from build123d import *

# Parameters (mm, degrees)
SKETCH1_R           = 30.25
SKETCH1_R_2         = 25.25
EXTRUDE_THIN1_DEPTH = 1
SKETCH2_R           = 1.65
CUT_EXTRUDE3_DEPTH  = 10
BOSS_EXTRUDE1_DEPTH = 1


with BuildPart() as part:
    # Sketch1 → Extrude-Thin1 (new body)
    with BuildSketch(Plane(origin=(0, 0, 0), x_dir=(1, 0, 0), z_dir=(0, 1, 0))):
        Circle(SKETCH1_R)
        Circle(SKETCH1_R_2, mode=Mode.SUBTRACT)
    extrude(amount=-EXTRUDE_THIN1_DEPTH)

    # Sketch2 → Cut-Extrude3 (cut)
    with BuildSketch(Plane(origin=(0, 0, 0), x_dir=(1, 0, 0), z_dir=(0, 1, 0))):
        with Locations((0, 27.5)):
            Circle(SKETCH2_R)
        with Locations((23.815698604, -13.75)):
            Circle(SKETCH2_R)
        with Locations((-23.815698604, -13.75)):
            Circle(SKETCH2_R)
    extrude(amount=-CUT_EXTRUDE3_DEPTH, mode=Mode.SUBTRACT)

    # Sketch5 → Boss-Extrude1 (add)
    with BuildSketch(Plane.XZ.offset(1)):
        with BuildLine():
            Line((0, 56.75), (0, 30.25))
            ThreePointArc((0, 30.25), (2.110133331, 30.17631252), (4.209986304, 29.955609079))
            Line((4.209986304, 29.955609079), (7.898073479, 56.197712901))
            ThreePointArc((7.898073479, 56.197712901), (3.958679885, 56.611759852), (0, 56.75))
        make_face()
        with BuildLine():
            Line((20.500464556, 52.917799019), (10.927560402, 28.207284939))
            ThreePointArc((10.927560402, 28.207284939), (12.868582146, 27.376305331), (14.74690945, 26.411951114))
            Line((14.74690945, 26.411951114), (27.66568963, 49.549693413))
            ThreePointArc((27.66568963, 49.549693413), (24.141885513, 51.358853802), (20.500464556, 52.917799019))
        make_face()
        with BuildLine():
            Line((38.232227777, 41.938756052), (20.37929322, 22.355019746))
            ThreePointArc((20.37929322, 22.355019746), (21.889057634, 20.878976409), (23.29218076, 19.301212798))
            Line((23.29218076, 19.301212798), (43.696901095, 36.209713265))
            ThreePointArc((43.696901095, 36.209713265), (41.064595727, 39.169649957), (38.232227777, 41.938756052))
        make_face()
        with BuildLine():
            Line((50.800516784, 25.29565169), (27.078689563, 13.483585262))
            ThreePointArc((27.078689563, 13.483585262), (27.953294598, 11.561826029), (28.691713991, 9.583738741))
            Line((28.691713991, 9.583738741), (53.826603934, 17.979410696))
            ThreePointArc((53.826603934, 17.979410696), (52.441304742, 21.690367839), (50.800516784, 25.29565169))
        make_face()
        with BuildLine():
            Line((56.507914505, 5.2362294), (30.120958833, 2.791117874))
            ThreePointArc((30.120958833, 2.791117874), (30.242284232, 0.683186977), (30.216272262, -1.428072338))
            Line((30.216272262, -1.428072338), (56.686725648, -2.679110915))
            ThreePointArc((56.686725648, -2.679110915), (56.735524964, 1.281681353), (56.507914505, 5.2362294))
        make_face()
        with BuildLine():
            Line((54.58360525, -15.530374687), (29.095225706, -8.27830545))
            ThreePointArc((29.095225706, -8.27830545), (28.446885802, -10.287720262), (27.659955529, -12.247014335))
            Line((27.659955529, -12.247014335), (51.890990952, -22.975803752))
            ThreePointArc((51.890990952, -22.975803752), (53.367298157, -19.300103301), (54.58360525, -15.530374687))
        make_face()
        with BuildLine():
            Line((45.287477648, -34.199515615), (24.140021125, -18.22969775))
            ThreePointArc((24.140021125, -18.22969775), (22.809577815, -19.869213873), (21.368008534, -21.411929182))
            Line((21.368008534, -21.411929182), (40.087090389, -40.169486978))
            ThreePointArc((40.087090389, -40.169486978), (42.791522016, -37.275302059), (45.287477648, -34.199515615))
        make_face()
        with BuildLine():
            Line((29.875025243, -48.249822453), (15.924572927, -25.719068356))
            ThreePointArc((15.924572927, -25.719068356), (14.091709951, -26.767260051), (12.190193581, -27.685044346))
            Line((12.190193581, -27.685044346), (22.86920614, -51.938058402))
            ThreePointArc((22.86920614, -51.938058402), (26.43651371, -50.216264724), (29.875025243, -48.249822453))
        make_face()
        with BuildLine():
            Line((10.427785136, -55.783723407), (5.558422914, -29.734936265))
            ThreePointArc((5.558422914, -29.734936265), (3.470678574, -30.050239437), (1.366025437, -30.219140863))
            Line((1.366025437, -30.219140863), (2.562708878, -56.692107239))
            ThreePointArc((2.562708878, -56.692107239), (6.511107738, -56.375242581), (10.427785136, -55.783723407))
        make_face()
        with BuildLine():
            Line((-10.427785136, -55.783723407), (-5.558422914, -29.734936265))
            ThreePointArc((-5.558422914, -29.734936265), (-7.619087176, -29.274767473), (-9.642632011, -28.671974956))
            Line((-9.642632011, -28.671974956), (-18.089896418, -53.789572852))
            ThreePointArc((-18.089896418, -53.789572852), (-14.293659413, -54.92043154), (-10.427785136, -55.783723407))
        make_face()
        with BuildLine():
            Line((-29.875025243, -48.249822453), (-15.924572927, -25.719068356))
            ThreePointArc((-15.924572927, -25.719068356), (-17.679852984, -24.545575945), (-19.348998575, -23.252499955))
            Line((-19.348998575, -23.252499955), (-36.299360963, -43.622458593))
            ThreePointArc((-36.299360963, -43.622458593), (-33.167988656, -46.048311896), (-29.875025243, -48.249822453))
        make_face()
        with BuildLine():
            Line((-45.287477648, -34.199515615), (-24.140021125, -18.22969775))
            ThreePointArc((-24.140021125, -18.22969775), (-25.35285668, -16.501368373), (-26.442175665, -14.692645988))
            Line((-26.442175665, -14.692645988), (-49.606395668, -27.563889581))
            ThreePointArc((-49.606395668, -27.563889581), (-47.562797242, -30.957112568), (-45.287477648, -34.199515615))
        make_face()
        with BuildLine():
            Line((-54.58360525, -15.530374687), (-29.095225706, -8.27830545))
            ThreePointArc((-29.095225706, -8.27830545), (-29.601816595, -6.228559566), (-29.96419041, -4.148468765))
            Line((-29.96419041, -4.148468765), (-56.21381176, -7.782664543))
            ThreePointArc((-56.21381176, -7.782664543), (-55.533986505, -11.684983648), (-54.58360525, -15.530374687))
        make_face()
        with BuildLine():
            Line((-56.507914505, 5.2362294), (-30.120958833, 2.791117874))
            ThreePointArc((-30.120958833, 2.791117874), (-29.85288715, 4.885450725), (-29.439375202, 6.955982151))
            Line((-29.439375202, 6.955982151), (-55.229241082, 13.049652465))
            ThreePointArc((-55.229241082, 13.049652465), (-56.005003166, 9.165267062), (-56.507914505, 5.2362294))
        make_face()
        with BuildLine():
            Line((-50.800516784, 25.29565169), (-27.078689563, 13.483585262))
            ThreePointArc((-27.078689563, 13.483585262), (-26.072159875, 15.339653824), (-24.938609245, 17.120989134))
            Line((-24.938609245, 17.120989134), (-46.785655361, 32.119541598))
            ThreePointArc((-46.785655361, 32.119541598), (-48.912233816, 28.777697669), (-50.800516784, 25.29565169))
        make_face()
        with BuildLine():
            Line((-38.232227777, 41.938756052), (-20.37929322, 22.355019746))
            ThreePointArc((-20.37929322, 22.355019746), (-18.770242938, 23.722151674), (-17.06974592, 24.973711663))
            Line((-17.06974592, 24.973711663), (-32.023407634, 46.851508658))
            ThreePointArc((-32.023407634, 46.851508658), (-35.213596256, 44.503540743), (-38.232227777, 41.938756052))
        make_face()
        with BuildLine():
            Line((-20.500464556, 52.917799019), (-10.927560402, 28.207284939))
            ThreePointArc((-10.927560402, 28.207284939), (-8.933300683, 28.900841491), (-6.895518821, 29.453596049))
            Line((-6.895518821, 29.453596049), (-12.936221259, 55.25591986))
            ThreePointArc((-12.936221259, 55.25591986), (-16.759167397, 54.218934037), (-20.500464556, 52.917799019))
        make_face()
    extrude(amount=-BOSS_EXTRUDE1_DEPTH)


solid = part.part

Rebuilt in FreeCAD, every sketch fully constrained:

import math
import FreeCAD as App
import Part
import Sketcher
Q = App.Units.Quantity

doc = App.newDocument("Part")
params = doc.addObject("Spreadsheet::Sheet", "Params")
for row, (alias, value) in enumerate([
    ("sketch1_diameter", "60.5 mm"),
    ("sketch1_diameter2", "50.5 mm"),
    ("pad1_length", "1 mm"),
    ("sketch2_diameter", "3.3 mm"),
    ("pocket1_length", "10 mm"),
    ("sketch3_radius", "30.25 mm"),
    ("sketch3_radius2", "56.75 mm"),
    ("pad2_length", "1 mm"),
], start=1):
    params.set(f"A{row}", alias)
    params.set(f"B{row}", "=" + value)
    params.setAlias(f"B{row}", alias)

body = doc.addObject("PartDesign::Body", "Body")

# Sketch on XZ plane
sketch1 = body.newObject("Sketcher::SketchObject", "Sketch")
sketch1.AttachmentSupport = (doc.getObject("XZ_Plane"), [""])
sketch1.MapMode = "FlatFace"
sketch1.addGeometry([
    Part.Circle(App.Vector(0, 0, 0), App.Vector(0, 0, 1), 30),
    Part.Circle(App.Vector(0, 0, 0), App.Vector(0, 0, 1), 25),
], False)
sketch1.addConstraint([
    Sketcher.Constraint("Coincident", 0, 3, -1, 1),
    Sketcher.Constraint("Coincident", 1, 3, -1, 1),
    Sketcher.Constraint("Diameter", 0, 60.5),
    Sketcher.Constraint("Diameter", 1, 50.5),
])
sketch1.setExpression("Constraints[2]", "Params.sketch1_diameter")
sketch1.setExpression("Constraints[3]", "Params.sketch1_diameter2")
pad1 = body.newObject("PartDesign::Pad", "Pad")
pad1.Profile = sketch1
pad1.setExpression("Length", "Params.pad1_length")

# Sketch on XZ plane
sketch2 = body.newObject("Sketcher::SketchObject", "Sketch001")
sketch2.AttachmentSupport = (doc.getObject("XZ_Plane"), [""])
sketch2.MapMode = "FlatFace"
sketch2.addGeometry([
    Part.Circle(App.Vector(0, -27.5, 0), App.Vector(0, 0, 1), 1.6),
    Part.Circle(App.Vector(23.8, 13.8, 0), App.Vector(0, 0, 1), 1.6),
    Part.Circle(App.Vector(-23.8, 13.8, 0), App.Vector(0, 0, 1), 1.6),
], False)
sketch2.addConstraint([
    Sketcher.Constraint("Equal", 0, 1),
    Sketcher.Constraint("Equal", 1, 2),
    Sketcher.Constraint("Symmetric", 1, 3, 2, 3, -2),
    Sketcher.Constraint("PointOnObject", 0, 3, -2),
    Sketcher.Constraint("Diameter", 0, 3.3),
    Sketcher.Constraint("DistanceY", 0, 3, -1, 1, 27.5),
    Sketcher.Constraint("DistanceY", -1, 1, 1, 3, 13.75),
    Sketcher.Constraint("DistanceX", -1, 1, 1, 3, 23.815699),
])
sketch2.setExpression("Constraints[4]", "Params.sketch2_diameter")
pocket1 = body.newObject("PartDesign::Pocket", "Pocket")
pocket1.Profile = sketch2
pocket1.setExpression("Length", "Params.pocket1_length")
pocket1.Reversed = True

# Sketch on XZ plane
sketch3 = body.newObject("Sketcher::SketchObject", "Sketch002")
sketch3.AttachmentSupport = (doc.getObject("XZ_Plane"), [""])
sketch3.MapMode = "FlatFace"
sketch3.AttachmentOffset = App.Placement(App.Vector(0, 0, 1), App.Rotation())
sketch3.addGeometry([
    Part.LineSegment(App.Vector(0, 56.8, 0), App.Vector(0, 30.2, 0)),  # 0
    Part.ArcOfCircle(Part.Circle(App.Vector(0, 0, 0), App.Vector(0, 0, 1), 30.3), math.radians(82), math.radians(90)),  # 1
    Part.LineSegment(App.Vector(4.2, 30, 0), App.Vector(7.9, 56.2, 0)),  # 2
    Part.ArcOfCircle(Part.Circle(App.Vector(0, 0, 0), App.Vector(0, 0, 1), 56.8), math.radians(82), math.radians(90)),  # 3
    Part.LineSegment(App.Vector(20.5, 52.9, 0), App.Vector(10.9, 28.2, 0)),  # 4
    Part.ArcOfCircle(Part.Circle(App.Vector(0, 0, 0), App.Vector(0, 0, 1), 30.2), math.radians(60.82), math.radians(68.82)),  # 5
    Part.LineSegment(App.Vector(14.7, 26.4, 0), App.Vector(27.7, 49.5, 0)),  # 6
    Part.ArcOfCircle(Part.Circle(App.Vector(0, 0, 0), App.Vector(0, 0, 1), 56.8), math.radians(60.82), math.radians(68.82)),  # 7
    Part.LineSegment(App.Vector(38.2, 41.9, 0), App.Vector(20.4, 22.4, 0)),  # 8
    Part.ArcOfCircle(Part.Circle(App.Vector(0, 0, 0), App.Vector(0, 0, 1), 30.3), math.radians(39.65), math.radians(47.65)),  # 9
    Part.LineSegment(App.Vector(23.3, 19.3, 0), App.Vector(43.7, 36.2, 0)),  # 10
    Part.ArcOfCircle(Part.Circle(App.Vector(0, 0, 0), App.Vector(0, 0, 1), 56.8), math.radians(39.65), math.radians(47.65)),  # 11
    Part.LineSegment(App.Vector(50.8, 25.3, 0), App.Vector(27.1, 13.5, 0)),  # 12
    Part.ArcOfCircle(Part.Circle(App.Vector(0, 0, 0), App.Vector(0, 0, 1), 30.2), math.radians(18.47), math.radians(26.47)),  # 13
    Part.LineSegment(App.Vector(28.7, 9.6, 0), App.Vector(53.8, 18, 0)),  # 14
    Part.ArcOfCircle(Part.Circle(App.Vector(0, 0, 0), App.Vector(0, 0, 1), 56.7), math.radians(18.47), math.radians(26.47)),  # 15
    Part.LineSegment(App.Vector(56.5, 5.2, 0), App.Vector(30.1, 2.8, 0)),  # 16
    Part.ArcOfCircle(Part.Circle(App.Vector(0, 0, 0), App.Vector(0, 0, 1), 30.2), math.radians(-2.71), math.radians(5.29)),  # 17
    Part.LineSegment(App.Vector(30.2, -1.4, 0), App.Vector(56.7, -2.7, 0)),  # 18
    Part.ArcOfCircle(Part.Circle(App.Vector(0, 0, 0), App.Vector(0, 0, 1), 56.7), math.radians(-2.71), math.radians(5.29)),  # 19
    Part.LineSegment(App.Vector(54.6, -15.5, 0), App.Vector(29.1, -8.3, 0)),  # 20
    Part.ArcOfCircle(Part.Circle(App.Vector(0, 0, 0), App.Vector(0, 0, 1), 30.2), math.radians(-23.88), math.radians(-15.88)),  # 21
    Part.LineSegment(App.Vector(27.7, -12.2, 0), App.Vector(51.9, -23, 0)),  # 22
    Part.ArcOfCircle(Part.Circle(App.Vector(0, 0, 0), App.Vector(0, 0, 1), 56.8), math.radians(-23.88), math.radians(-15.88)),  # 23
    Part.LineSegment(App.Vector(45.3, -34.2, 0), App.Vector(24.1, -18.2, 0)),  # 24
    Part.ArcOfCircle(Part.Circle(App.Vector(0, 0, 0), App.Vector(0, 0, 1), 30.2), math.radians(-45.06), math.radians(-37.06)),  # 25
    Part.LineSegment(App.Vector(21.4, -21.4, 0), App.Vector(40.1, -40.2, 0)),  # 26
    Part.ArcOfCircle(Part.Circle(App.Vector(0, 0, 0), App.Vector(0, 0, 1), 56.7), math.radians(-45.06), math.radians(-37.06)),  # 27
    Part.LineSegment(App.Vector(29.9, -48.2, 0), App.Vector(15.9, -25.7, 0)),  # 28
    Part.ArcOfCircle(Part.Circle(App.Vector(0, 0, 0), App.Vector(0, 0, 1), 30.3), math.radians(-66.24), math.radians(-58.24)),  # 29
    Part.LineSegment(App.Vector(12.2, -27.7, 0), App.Vector(22.9, -51.9, 0)),  # 30
    Part.ArcOfCircle(Part.Circle(App.Vector(0, 0, 0), App.Vector(0, 0, 1), 56.8), math.radians(-66.24), math.radians(-58.24)),  # 31
    Part.LineSegment(App.Vector(10.4, -55.8, 0), App.Vector(5.6, -29.7, 0)),  # 32
    Part.ArcOfCircle(Part.Circle(App.Vector(0, 0, 0), App.Vector(0, 0, 1), 30.2), math.radians(-87.41), math.radians(-79.41)),  # 33
    Part.LineSegment(App.Vector(1.4, -30.2, 0), App.Vector(2.6, -56.7, 0)),  # 34
    Part.ArcOfCircle(Part.Circle(App.Vector(0, 0, 0), App.Vector(0, 0, 1), 56.7), math.radians(-87.41), math.radians(-79.41)),  # 35
    Part.LineSegment(App.Vector(-10.4, -55.8, 0), App.Vector(-5.6, -29.7, 0)),  # 36
    Part.ArcOfCircle(Part.Circle(App.Vector(0, 0, 0), App.Vector(0, 0, 1), 30.2), math.radians(-108.59), math.radians(-100.59)),  # 37
    Part.LineSegment(App.Vector(-9.6, -28.7, 0), App.Vector(-18.1, -53.8, 0)),  # 38
    Part.ArcOfCircle(Part.Circle(App.Vector(0, 0, 0), App.Vector(0, 0, 1), 56.8), math.radians(-108.59), math.radians(-100.59)),  # 39
    Part.LineSegment(App.Vector(-29.9, -48.2, 0), App.Vector(-15.9, -25.7, 0)),  # 40
    Part.ArcOfCircle(Part.Circle(App.Vector(0, 0, 0), App.Vector(0, 0, 1), 30.3), math.radians(-129.76), math.radians(-121.76)),  # 41
    Part.LineSegment(App.Vector(-19.3, -23.3, 0), App.Vector(-36.3, -43.6, 0)),  # 42
    Part.ArcOfCircle(Part.Circle(App.Vector(0, 0, 0), App.Vector(0, 0, 1), 56.8), math.radians(-129.76), math.radians(-121.76)),  # 43
    Part.LineSegment(App.Vector(-45.3, -34.2, 0), App.Vector(-24.1, -18.2, 0)),  # 44
    Part.ArcOfCircle(Part.Circle(App.Vector(0, 0, 0), App.Vector(0, 0, 1), 30.2), math.radians(-150.94), math.radians(-142.94)),  # 45
    Part.LineSegment(App.Vector(-26.4, -14.7, 0), App.Vector(-49.6, -27.6, 0)),  # 46
    Part.ArcOfCircle(Part.Circle(App.Vector(0, 0, 0), App.Vector(0, 0, 1), 56.7), math.radians(-150.94), math.radians(-142.94)),  # 47
    Part.LineSegment(App.Vector(-54.6, -15.5, 0), App.Vector(-29.1, -8.3, 0)),  # 48
    Part.ArcOfCircle(Part.Circle(App.Vector(0, 0, 0), App.Vector(0, 0, 1), 30.3), math.radians(-172.12), math.radians(-164.12)),  # 49
    Part.LineSegment(App.Vector(-30, -4.1, 0), App.Vector(-56.2, -7.8, 0)),  # 50
    Part.ArcOfCircle(Part.Circle(App.Vector(0, 0, 0), App.Vector(0, 0, 1), 56.8), math.radians(-172.12), math.radians(-164.12)),  # 51
    Part.LineSegment(App.Vector(-56.5, 5.2, 0), App.Vector(-30.1, 2.8, 0)),  # 52
    Part.ArcOfCircle(Part.Circle(App.Vector(0, 0, 0), App.Vector(0, 0, 1), 30.3), math.radians(166.71), math.radians(174.71)),  # 53
    Part.LineSegment(App.Vector(-29.4, 7, 0), App.Vector(-55.2, 13, 0)),  # 54
    Part.ArcOfCircle(Part.Circle(App.Vector(0, 0, 0), App.Vector(0, 0, 1), 56.8), math.radians(166.71), math.radians(174.71)),  # 55
    Part.LineSegment(App.Vector(-50.8, 25.3, 0), App.Vector(-27.1, 13.5, 0)),  # 56
    Part.ArcOfCircle(Part.Circle(App.Vector(0, 0, 0), App.Vector(0, 0, 1), 30.2), math.radians(145.53), math.radians(153.53)),  # 57
    Part.LineSegment(App.Vector(-24.9, 17.1, 0), App.Vector(-46.8, 32.1, 0)),  # 58
    Part.ArcOfCircle(Part.Circle(App.Vector(0, 0, 0), App.Vector(0, 0, 1), 56.7), math.radians(145.53), math.radians(153.53)),  # 59
    Part.LineSegment(App.Vector(-38.2, 41.9, 0), App.Vector(-20.4, 22.4, 0)),  # 60
    Part.ArcOfCircle(Part.Circle(App.Vector(0, 0, 0), App.Vector(0, 0, 1), 30.2), math.radians(124.35), math.radians(132.35)),  # 61
    Part.LineSegment(App.Vector(-17.1, 25, 0), App.Vector(-32, 46.9, 0)),  # 62
    Part.ArcOfCircle(Part.Circle(App.Vector(0, 0, 0), App.Vector(0, 0, 1), 56.8), math.radians(124.35), math.radians(132.35)),  # 63
    Part.LineSegment(App.Vector(-20.5, 52.9, 0), App.Vector(-10.9, 28.2, 0)),  # 64
    Part.ArcOfCircle(Part.Circle(App.Vector(0, 0, 0), App.Vector(0, 0, 1), 30.3), math.radians(103.18), math.radians(111.18)),  # 65
    Part.LineSegment(App.Vector(-6.9, 29.5, 0), App.Vector(-12.9, 55.3, 0)),  # 66
    Part.ArcOfCircle(Part.Circle(App.Vector(0, 0, 0), App.Vector(0, 0, 1), 56.8), math.radians(103.18), math.radians(111.18)),  # 67
], False)
sketch3.addConstraint([
    Sketcher.Constraint("Coincident", 0, 2, 1, 2),
    Sketcher.Constraint("Coincident", 1, 1, 2, 1),
    Sketcher.Constraint("Coincident", 2, 2, 3, 1),
    Sketcher.Constraint("Coincident", 3, 2, 0, 1),
    Sketcher.Constraint("Coincident", 4, 2, 5, 2),
    Sketcher.Constraint("Coincident", 5, 1, 6, 1),
    Sketcher.Constraint("Coincident", 6, 2, 7, 1),
    Sketcher.Constraint("Coincident", 7, 2, 4, 1),
    Sketcher.Constraint("Coincident", 8, 2, 9, 2),
    Sketcher.Constraint("Coincident", 9, 1, 10, 1),
    Sketcher.Constraint("Coincident", 10, 2, 11, 1),
    Sketcher.Constraint("Coincident", 11, 2, 8, 1),
    Sketcher.Constraint("Coincident", 12, 2, 13, 2),
    Sketcher.Constraint("Coincident", 13, 1, 14, 1),
    Sketcher.Constraint("Coincident", 14, 2, 15, 1),
    Sketcher.Constraint("Coincident", 15, 2, 12, 1),
    Sketcher.Constraint("Coincident", 16, 2, 17, 2),
    Sketcher.Constraint("Coincident", 17, 1, 18, 1),
    Sketcher.Constraint("Coincident", 18, 2, 19, 1),
    Sketcher.Constraint("Coincident", 19, 2, 16, 1),
    Sketcher.Constraint("Coincident", 20, 2, 21, 2),
    Sketcher.Constraint("Coincident", 21, 1, 22, 1),
    Sketcher.Constraint("Coincident", 22, 2, 23, 1),
    Sketcher.Constraint("Coincident", 23, 2, 20, 1),
    Sketcher.Constraint("Coincident", 24, 2, 25, 2),
    Sketcher.Constraint("Coincident", 25, 1, 26, 1),
    Sketcher.Constraint("Coincident", 26, 2, 27, 1),
    Sketcher.Constraint("Coincident", 27, 2, 24, 1),
    Sketcher.Constraint("Coincident", 28, 2, 29, 2),
    Sketcher.Constraint("Coincident", 29, 1, 30, 1),
    Sketcher.Constraint("Coincident", 30, 2, 31, 1),
    Sketcher.Constraint("Coincident", 31, 2, 28, 1),
    Sketcher.Constraint("Coincident", 32, 2, 33, 2),
    Sketcher.Constraint("Coincident", 33, 1, 34, 1),
    Sketcher.Constraint("Coincident", 34, 2, 35, 1),
    Sketcher.Constraint("Coincident", 35, 2, 32, 1),
    Sketcher.Constraint("Coincident", 36, 2, 37, 2),
    Sketcher.Constraint("Coincident", 37, 1, 38, 1),
    Sketcher.Constraint("Coincident", 38, 2, 39, 1),
    Sketcher.Constraint("Coincident", 39, 2, 36, 1),
    Sketcher.Constraint("Coincident", 40, 2, 41, 2),
    Sketcher.Constraint("Coincident", 41, 1, 42, 1),
    Sketcher.Constraint("Coincident", 42, 2, 43, 1),
    Sketcher.Constraint("Coincident", 43, 2, 40, 1),
    Sketcher.Constraint("Coincident", 44, 2, 45, 2),
    Sketcher.Constraint("Coincident", 45, 1, 46, 1),
    Sketcher.Constraint("Coincident", 46, 2, 47, 1),
    Sketcher.Constraint("Coincident", 47, 2, 44, 1),
    Sketcher.Constraint("Coincident", 48, 2, 49, 2),
    Sketcher.Constraint("Coincident", 49, 1, 50, 1),
    Sketcher.Constraint("Coincident", 50, 2, 51, 1),
    Sketcher.Constraint("Coincident", 51, 2, 48, 1),
    Sketcher.Constraint("Coincident", 52, 2, 53, 2),
    Sketcher.Constraint("Coincident", 53, 1, 54, 1),
    Sketcher.Constraint("Coincident", 54, 2, 55, 1),
    Sketcher.Constraint("Coincident", 55, 2, 52, 1),
    Sketcher.Constraint("Coincident", 56, 2, 57, 2),
    Sketcher.Constraint("Coincident", 57, 1, 58, 1),
    Sketcher.Constraint("Coincident", 58, 2, 59, 1),
    Sketcher.Constraint("Coincident", 59, 2, 56, 1),
    Sketcher.Constraint("Coincident", 60, 2, 61, 2),
    Sketcher.Constraint("Coincident", 61, 1, 62, 1),
    Sketcher.Constraint("Coincident", 62, 2, 63, 1),
    Sketcher.Constraint("Coincident", 63, 2, 60, 1),
    Sketcher.Constraint("Coincident", 64, 2, 65, 2),
    Sketcher.Constraint("Coincident", 65, 1, 66, 1),
    Sketcher.Constraint("Coincident", 66, 2, 67, 1),
    Sketcher.Constraint("Coincident", 67, 2, 64, 1),
    Sketcher.Constraint("Vertical", 0),
    Sketcher.Constraint("Coincident", 1, 3, -1, 1),
    Sketcher.Constraint("Coincident", 3, 3, -1, 1),
    Sketcher.Constraint("Coincident", 5, 3, -1, 1),
    Sketcher.Constraint("Coincident", 7, 3, -1, 1),
    Sketcher.Constraint("Coincident", 9, 3, -1, 1),
    Sketcher.Constraint("Coincident", 11, 3, -1, 1),
    Sketcher.Constraint("Coincident", 13, 3, -1, 1),
    Sketcher.Constraint("Coincident", 15, 3, -1, 1),
    Sketcher.Constraint("Coincident", 17, 3, -1, 1),
    Sketcher.Constraint("Coincident", 19, 3, -1, 1),
    Sketcher.Constraint("Coincident", 21, 3, -1, 1),
    Sketcher.Constraint("Coincident", 23, 3, -1, 1),
    Sketcher.Constraint("Coincident", 25, 3, -1, 1),
    Sketcher.Constraint("Coincident", 27, 3, -1, 1),
    Sketcher.Constraint("Coincident", 29, 3, -1, 1),
    Sketcher.Constraint("Coincident", 31, 3, -1, 1),
    Sketcher.Constraint("Coincident", 33, 3, -1, 1),
    Sketcher.Constraint("Coincident", 35, 3, -1, 1),
    Sketcher.Constraint("Coincident", 37, 3, -1, 1),
    Sketcher.Constraint("Coincident", 39, 3, -1, 1),
    Sketcher.Constraint("Coincident", 41, 3, -1, 1),
    Sketcher.Constraint("Coincident", 43, 3, -1, 1),
    Sketcher.Constraint("Coincident", 45, 3, -1, 1),
    Sketcher.Constraint("Coincident", 47, 3, -1, 1),
    Sketcher.Constraint("Coincident", 49, 3, -1, 1),
    Sketcher.Constraint("Coincident", 51, 3, -1, 1),
    Sketcher.Constraint("Coincident", 53, 3, -1, 1),
    Sketcher.Constraint("Coincident", 55, 3, -1, 1),
    Sketcher.Constraint("Coincident", 57, 3, -1, 1),
    Sketcher.Constraint("Coincident", 59, 3, -1, 1),
    Sketcher.Constraint("Coincident", 61, 3, -1, 1),
    Sketcher.Constraint("Coincident", 63, 3, -1, 1),
    Sketcher.Constraint("Coincident", 65, 3, -1, 1),
    Sketcher.Constraint("Coincident", 67, 3, -1, 1),
    Sketcher.Constraint("Equal", 1, 5),
    Sketcher.Constraint("Equal", 3, 7),
    Sketcher.Constraint("Equal", 5, 9),
    Sketcher.Constraint("Equal", 7, 11),
    Sketcher.Constraint("Equal", 9, 13),
    Sketcher.Constraint("Equal", 11, 15),
    Sketcher.Constraint("Equal", 13, 17),
    Sketcher.Constraint("Equal", 15, 19),
    Sketcher.Constraint("Equal", 17, 21),
    Sketcher.Constraint("Equal", 19, 23),
    Sketcher.Constraint("Equal", 21, 25),
    Sketcher.Constraint("Equal", 23, 27),
    Sketcher.Constraint("Equal", 25, 29),
    Sketcher.Constraint("Equal", 27, 31),
    Sketcher.Constraint("Equal", 29, 33),
    Sketcher.Constraint("Equal", 31, 35),
    Sketcher.Constraint("Equal", 33, 37),
    Sketcher.Constraint("Equal", 35, 39),
    Sketcher.Constraint("Equal", 37, 41),
    Sketcher.Constraint("Equal", 39, 43),
    Sketcher.Constraint("Equal", 41, 45),
    Sketcher.Constraint("Equal", 43, 47),
    Sketcher.Constraint("Equal", 45, 49),
    Sketcher.Constraint("Equal", 47, 51),
    Sketcher.Constraint("Equal", 49, 53),
    Sketcher.Constraint("Equal", 51, 55),
    Sketcher.Constraint("Equal", 53, 57),
    Sketcher.Constraint("Equal", 55, 59),
    Sketcher.Constraint("Equal", 57, 61),
    Sketcher.Constraint("Equal", 59, 63),
    Sketcher.Constraint("Equal", 61, 65),
    Sketcher.Constraint("Equal", 63, 67),
    Sketcher.Constraint("PointOnObject", 0, 2, -2),
    Sketcher.Constraint("Horizontal", 32, 2, 36, 2),
    Sketcher.Constraint("Horizontal", 35, 2, 39, 2),
    Sketcher.Constraint("Horizontal", 28, 2, 40, 2),
    Sketcher.Constraint("Horizontal", 31, 2, 43, 2),
    Sketcher.Constraint("Horizontal", 24, 2, 44, 2),
    Sketcher.Constraint("Horizontal", 27, 2, 47, 2),
    Sketcher.Constraint("Horizontal", 20, 2, 48, 2),
    Sketcher.Constraint("Horizontal", 23, 2, 51, 2),
    Sketcher.Constraint("Horizontal", 16, 2, 52, 2),
    Sketcher.Constraint("Horizontal", 19, 2, 55, 2),
    Sketcher.Constraint("Horizontal", 12, 2, 56, 2),
    Sketcher.Constraint("Horizontal", 15, 2, 59, 2),
    Sketcher.Constraint("Horizontal", 8, 2, 60, 2),
    Sketcher.Constraint("Horizontal", 11, 2, 63, 2),
    Sketcher.Constraint("Horizontal", 4, 2, 64, 2),
    Sketcher.Constraint("Horizontal", 7, 2, 67, 2),
    Sketcher.Constraint("Angle", 2, Q("82 deg")),
    Sketcher.Constraint("Radius", 1, 30.25),
    Sketcher.Constraint("Radius", 3, 56.75),
    Sketcher.Constraint("DistanceX", 41, 1, -1, 1, 19.348999),
    Sketcher.Constraint("DistanceY", -1, 1, 7, 2, 52.917799),
    Sketcher.Constraint("DistanceX", -1, 1, 10, 2, 43.696901),
    Sketcher.Constraint("DistanceY", -1, 1, 1, 1, 29.955609),
    Sketcher.Constraint("DistanceX", -1, 1, 4, 2, 10.92756),
    Sketcher.Constraint("DistanceX", -1, 1, 5, 1, 14.746909),
    Sketcher.Constraint("DistanceX", -1, 1, 6, 2, 27.66569),
    Sketcher.Constraint("DistanceY", -1, 1, 8, 2, 22.35502),
    Sketcher.Constraint("DistanceX", -1, 1, 9, 1, 23.292181),
    Sketcher.Constraint("DistanceX", -1, 1, 12, 2, 27.07869),
    Sketcher.Constraint("DistanceY", -1, 1, 13, 1, 9.583739),
    Sketcher.Constraint("DistanceY", -1, 1, 14, 2, 17.979411),
    Sketcher.Constraint("DistanceY", -1, 1, 15, 2, 25.295652),
    Sketcher.Constraint("DistanceX", -1, 1, 16, 2, 30.120959),
    Sketcher.Constraint("DistanceY", 18, 2, -1, 1, 2.679111),
    Sketcher.Constraint("DistanceY", -1, 1, 19, 2, 5.236229),
    Sketcher.Constraint("DistanceX", -1, 1, 22, 2, 51.890991),
    Sketcher.Constraint("DistanceX", -1, 1, 24, 2, 24.140021),
    Sketcher.Constraint("DistanceX", -1, 1, 25, 1, 21.368009),
    Sketcher.Constraint("DistanceX", -1, 1, 26, 2, 40.08709),
    Sketcher.Constraint("DistanceY", 28, 2, -1, 1, 25.719068),
    Sketcher.Constraint("DistanceY", 30, 2, -1, 1, 51.938058),
    Sketcher.Constraint("DistanceY", 33, 1, -1, 1, 30.219141),
    Sketcher.Constraint("DistanceX", -1, 1, 34, 2, 2.562709),
    Sketcher.Constraint("DistanceX", 42, 2, -1, 1, 36.299361),
    Sketcher.Constraint("DistanceY", 46, 2, -1, 1, 27.56389),
    Sketcher.Constraint("DistanceX", 49, 1, -1, 1, 29.96419),
    Sketcher.Constraint("DistanceX", 50, 2, -1, 1, 56.213812),
    Sketcher.Constraint("DistanceX", 54, 2, -1, 1, 55.229241),
    Sketcher.Constraint("DistanceX", 57, 1, -1, 1, 24.938609),
    Sketcher.Constraint("DistanceY", -1, 1, 58, 2, 32.119542),
    Sketcher.Constraint("DistanceY", -1, 1, 61, 1, 24.973712),
    Sketcher.Constraint("DistanceY", -1, 1, 62, 2, 46.851509),
    Sketcher.Constraint("DistanceX", 65, 1, -1, 1, 6.895519),
    Sketcher.Constraint("DistanceX", 66, 2, -1, 1, 12.936221),
    Sketcher.Constraint("DistanceX", -1, 1, 11, 2, 38.232228),
    Sketcher.Constraint("DistanceX", -1, 1, 17, 1, 30.216272),
    Sketcher.Constraint("DistanceX", -1, 1, 20, 2, 29.095226),
    Sketcher.Constraint("DistanceX", -1, 1, 21, 1, 27.659956),
    Sketcher.Constraint("DistanceX", -1, 1, 23, 2, 54.583605),
    Sketcher.Constraint("DistanceX", -1, 1, 27, 2, 45.287478),
    Sketcher.Constraint("DistanceX", -1, 1, 29, 1, 12.190194),
    Sketcher.Constraint("DistanceX", -1, 1, 31, 2, 29.875025),
    Sketcher.Constraint("DistanceX", -1, 1, 32, 2, 5.558423),
    Sketcher.Constraint("DistanceX", -1, 1, 35, 2, 10.427785),
    Sketcher.Constraint("DistanceX", 37, 1, -1, 1, 9.642632),
    Sketcher.Constraint("DistanceX", 38, 2, -1, 1, 18.089896),
    Sketcher.Constraint("DistanceX", 45, 1, -1, 1, 26.442176),
    Sketcher.Constraint("DistanceX", 53, 1, -1, 1, 29.439375),
])
sketch3.setExpression("Constraints[153]", "Params.sketch3_radius")
sketch3.setExpression("Constraints[154]", "Params.sketch3_radius2")
pad2 = body.newObject("PartDesign::Pad", "Pad001")
pad2.Profile = sketch3
pad2.setExpression("Length", "Params.pad2_length")
pad2.Reversed = True

doc.recompute()
